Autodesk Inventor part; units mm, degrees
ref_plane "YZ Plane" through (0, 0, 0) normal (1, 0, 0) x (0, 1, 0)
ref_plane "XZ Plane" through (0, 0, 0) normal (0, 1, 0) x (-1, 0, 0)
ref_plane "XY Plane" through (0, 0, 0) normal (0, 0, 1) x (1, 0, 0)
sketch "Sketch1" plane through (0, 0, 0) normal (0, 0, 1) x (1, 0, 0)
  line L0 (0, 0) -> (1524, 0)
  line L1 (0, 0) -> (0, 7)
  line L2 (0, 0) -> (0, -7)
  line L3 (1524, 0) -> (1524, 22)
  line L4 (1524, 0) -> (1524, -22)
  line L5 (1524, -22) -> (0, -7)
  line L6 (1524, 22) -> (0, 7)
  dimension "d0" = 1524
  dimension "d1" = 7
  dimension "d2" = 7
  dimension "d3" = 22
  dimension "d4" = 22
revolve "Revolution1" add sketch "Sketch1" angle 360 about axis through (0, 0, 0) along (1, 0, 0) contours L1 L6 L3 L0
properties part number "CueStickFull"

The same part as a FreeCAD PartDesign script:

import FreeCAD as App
import Part
import Sketcher


def add_polygon(sketch, points):
    """Adds a closed chain of lines whose ends are joined by coincident constraints."""
    first, n = sketch.GeometryCount, len(points)
    for a, b in zip(points, points[1:] + points[:1]):
        sketch.addGeometry(Part.LineSegment(App.Vector(*a, 0), App.Vector(*b, 0)), False)
    for i in range(n):
        sketch.addConstraint(Sketcher.Constraint("Coincident", first + i, 2, first + (i + 1) % n, 1))

doc = App.newDocument("Part")
body = doc.addObject("PartDesign::Body", "Body")

# Sketch on XY plane
sketch1 = doc.addObject("Sketcher::SketchObject", "Sketch")
body.addObject(sketch1)
sketch1.AttachmentSupport = (doc.XY_Plane, [""])
sketch1.MapMode = "FlatFace"
add_polygon(sketch1, [(0, 7), (0, 0), (1524, 0), (1524, 22)])  # lines 0-3
sketch1.addConstraint([
    Sketcher.Constraint("Vertical", 0),
    Sketcher.Constraint("Horizontal", 1),
    Sketcher.Constraint("Vertical", 2),
    Sketcher.Constraint("Coincident", 0, 2, -1, 1),
    Sketcher.Constraint("DistanceX", 1, 1, 1, 2, 1524.0),
    Sketcher.Constraint("DistanceY", 0, 2, 0, 1, 7.0),
    Sketcher.Constraint("DistanceY", 2, 1, 2, 2, 22.0),
])
revolution = doc.addObject("PartDesign::Revolution", "Revolution")
body.addObject(revolution)
revolution.Profile = sketch1
revolution.ReferenceAxis = (sketch1, ["H_Axis"])
revolution.Angle = 360

doc.recompute()
